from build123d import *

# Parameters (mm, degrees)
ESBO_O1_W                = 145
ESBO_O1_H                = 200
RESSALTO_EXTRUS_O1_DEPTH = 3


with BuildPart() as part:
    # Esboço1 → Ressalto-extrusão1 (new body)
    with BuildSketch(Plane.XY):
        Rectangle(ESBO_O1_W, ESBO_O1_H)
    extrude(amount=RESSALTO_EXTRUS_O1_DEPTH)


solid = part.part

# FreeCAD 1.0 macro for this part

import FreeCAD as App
import Part
import Sketcher
from FreeCAD import Vector
Q = App.Units.Quantity

doc = App.newDocument("Part")
body = doc.addObject("PartDesign::Body", "Body")

# Sketch on XY plane
sketch1 = body.newObject("Sketcher::SketchObject", "Sketch")
sketch1.AttachmentSupport = (doc.getObject("XY_Plane"), [""])
sketch1.MapMode = "FlatFace"
sketch1.addGeometry(Part.LineSegment(Vector(-72, 100, 0), Vector(-72, -100, 0)), False)
sketch1.addGeometry(Part.LineSegment(Vector(-72, -100, 0), Vector(72, -100, 0)), False)
sketch1.addGeometry(Part.LineSegment(Vector(72, -100, 0), Vector(72, 100, 0)), False)
sketch1.addGeometry(Part.LineSegment(Vector(72, 100, 0), Vector(-72, 100, 0)), False)
sketch1.addConstraint(Sketcher.Constraint("Coincident", 0, 2, 1, 1))
sketch1.addConstraint(Sketcher.Constraint("Coincident", 1, 2, 2, 1))
sketch1.addConstraint(Sketcher.Constraint("Coincident", 2, 2, 3, 1))
sketch1.addConstraint(Sketcher.Constraint("Coincident", 3, 2, 0, 1))
sketch1.addConstraint(Sketcher.Constraint("Vertical", 0))
sketch1.addConstraint(Sketcher.Constraint("Horizontal", 1))
sketch1.addConstraint(Sketcher.Constraint("Vertical", 2))
sketch1.addConstraint(Sketcher.Constraint("Horizontal", 3))
sketch1.addConstraint(Sketcher.Constraint("Symmetric", 0, 2, 2, 2, -1, 1))
sketch1.addConstraint(Sketcher.Constraint("DistanceX", 1, 1, 1, 2, Q("145 mm")))
sketch1.addConstraint(Sketcher.Constraint("DistanceY", 0, 2, 0, 1, Q("200 mm")))
pad1 = body.newObject("PartDesign::Pad", "Pad")
pad1.Profile = sketch1
pad1.Length = 3

doc.recompute()
